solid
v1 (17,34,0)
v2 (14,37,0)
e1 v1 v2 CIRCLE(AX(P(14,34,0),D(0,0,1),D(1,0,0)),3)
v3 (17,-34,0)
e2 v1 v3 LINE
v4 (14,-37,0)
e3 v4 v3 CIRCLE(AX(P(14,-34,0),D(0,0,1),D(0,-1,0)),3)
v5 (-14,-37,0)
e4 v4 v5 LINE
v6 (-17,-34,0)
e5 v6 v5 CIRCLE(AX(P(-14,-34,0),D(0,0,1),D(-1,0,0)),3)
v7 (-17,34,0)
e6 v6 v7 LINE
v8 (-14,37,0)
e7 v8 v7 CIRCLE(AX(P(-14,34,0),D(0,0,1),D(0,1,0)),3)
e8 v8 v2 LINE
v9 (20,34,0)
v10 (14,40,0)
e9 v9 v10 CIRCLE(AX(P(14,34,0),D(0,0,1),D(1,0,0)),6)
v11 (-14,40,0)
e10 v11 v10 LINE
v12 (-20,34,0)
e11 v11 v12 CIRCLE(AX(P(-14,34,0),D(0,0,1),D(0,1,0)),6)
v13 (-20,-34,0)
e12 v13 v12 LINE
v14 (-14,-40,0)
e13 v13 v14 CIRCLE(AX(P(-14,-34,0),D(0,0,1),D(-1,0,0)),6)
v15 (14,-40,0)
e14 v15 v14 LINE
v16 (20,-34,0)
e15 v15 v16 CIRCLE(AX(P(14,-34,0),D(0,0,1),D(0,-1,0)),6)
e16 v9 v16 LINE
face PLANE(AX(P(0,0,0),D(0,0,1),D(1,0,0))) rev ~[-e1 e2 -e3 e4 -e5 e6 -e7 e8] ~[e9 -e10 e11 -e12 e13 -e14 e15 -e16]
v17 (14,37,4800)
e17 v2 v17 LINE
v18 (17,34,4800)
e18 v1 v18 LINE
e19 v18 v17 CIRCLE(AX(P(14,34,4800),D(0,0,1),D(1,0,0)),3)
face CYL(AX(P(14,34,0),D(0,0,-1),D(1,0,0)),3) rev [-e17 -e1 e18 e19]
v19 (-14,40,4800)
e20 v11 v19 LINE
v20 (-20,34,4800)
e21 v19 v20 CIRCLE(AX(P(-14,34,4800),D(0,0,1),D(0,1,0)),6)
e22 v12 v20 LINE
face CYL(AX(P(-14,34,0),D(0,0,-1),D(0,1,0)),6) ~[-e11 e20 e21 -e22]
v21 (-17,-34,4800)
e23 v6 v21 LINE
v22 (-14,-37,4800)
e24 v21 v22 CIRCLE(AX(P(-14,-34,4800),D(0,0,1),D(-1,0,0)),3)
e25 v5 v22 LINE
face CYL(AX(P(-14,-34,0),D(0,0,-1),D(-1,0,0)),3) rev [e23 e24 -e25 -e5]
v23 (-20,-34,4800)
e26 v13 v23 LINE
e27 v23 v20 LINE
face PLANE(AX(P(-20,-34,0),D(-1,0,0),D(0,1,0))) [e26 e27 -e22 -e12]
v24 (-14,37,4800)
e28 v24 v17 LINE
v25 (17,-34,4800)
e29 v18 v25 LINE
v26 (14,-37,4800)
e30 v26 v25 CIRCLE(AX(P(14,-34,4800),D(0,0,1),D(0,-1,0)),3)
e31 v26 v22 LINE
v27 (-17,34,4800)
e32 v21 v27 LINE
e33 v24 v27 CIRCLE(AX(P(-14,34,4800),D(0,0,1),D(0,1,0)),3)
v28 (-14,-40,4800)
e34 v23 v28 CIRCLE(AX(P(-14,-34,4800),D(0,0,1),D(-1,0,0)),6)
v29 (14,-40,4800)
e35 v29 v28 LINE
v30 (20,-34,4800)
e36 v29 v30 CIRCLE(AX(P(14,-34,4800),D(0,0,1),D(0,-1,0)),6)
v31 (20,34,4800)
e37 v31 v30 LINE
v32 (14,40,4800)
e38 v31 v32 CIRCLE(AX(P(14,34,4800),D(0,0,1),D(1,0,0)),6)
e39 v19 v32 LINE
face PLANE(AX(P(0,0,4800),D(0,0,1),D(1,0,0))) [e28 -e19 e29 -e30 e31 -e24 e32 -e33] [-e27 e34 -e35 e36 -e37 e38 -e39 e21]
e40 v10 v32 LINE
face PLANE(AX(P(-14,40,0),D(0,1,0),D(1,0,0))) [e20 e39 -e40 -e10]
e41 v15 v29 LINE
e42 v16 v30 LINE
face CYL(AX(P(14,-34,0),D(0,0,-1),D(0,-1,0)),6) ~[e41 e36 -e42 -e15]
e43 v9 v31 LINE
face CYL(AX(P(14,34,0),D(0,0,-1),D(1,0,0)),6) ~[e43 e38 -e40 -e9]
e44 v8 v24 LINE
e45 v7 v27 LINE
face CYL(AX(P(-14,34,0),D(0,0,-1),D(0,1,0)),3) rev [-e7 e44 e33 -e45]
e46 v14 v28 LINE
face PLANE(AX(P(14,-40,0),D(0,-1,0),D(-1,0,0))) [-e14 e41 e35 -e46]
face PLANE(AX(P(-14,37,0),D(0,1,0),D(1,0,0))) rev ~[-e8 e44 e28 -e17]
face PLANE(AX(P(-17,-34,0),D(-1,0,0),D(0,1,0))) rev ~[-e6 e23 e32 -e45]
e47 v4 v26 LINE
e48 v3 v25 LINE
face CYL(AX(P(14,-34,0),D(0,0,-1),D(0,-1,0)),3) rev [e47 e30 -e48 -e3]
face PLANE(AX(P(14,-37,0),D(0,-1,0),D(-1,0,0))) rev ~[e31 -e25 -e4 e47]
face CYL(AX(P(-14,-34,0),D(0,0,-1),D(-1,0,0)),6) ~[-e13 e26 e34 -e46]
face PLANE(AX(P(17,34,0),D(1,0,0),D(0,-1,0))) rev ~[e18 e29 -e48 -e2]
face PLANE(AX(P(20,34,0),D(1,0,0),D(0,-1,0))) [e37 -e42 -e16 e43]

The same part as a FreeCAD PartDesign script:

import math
import FreeCAD as App
import Part
import Sketcher

doc = App.newDocument("Part")
body = doc.addObject("PartDesign::Body", "Body")

# Sketch on XY plane
sketch1 = doc.addObject("Sketcher::SketchObject", "Sketch")
body.addObject(sketch1)
sketch1.AttachmentSupport = (doc.XY_Plane, [""])
sketch1.MapMode = "FlatFace"
sketch1.addGeometry(Part.LineSegment(App.Vector(-20, 34, 0), App.Vector(-20, -34, 0)), False)
sketch1.addGeometry(Part.ArcOfCircle(Part.Circle(App.Vector(-14, -34, 0), App.Vector(0, 0, 1), 6), math.radians(180), math.radians(270)), False)
sketch1.addGeometry(Part.LineSegment(App.Vector(-14, -40, 0), App.Vector(14, -40, 0)), False)
sketch1.addGeometry(Part.ArcOfCircle(Part.Circle(App.Vector(14, -34, 0), App.Vector(0, 0, 1), 6), math.radians(-90), math.radians(0)), False)
sketch1.addGeometry(Part.LineSegment(App.Vector(20, -34, 0), App.Vector(20, 34, 0)), False)
sketch1.addGeometry(Part.ArcOfCircle(Part.Circle(App.Vector(14, 34, 0), App.Vector(0, 0, 1), 6), math.radians(0), math.radians(90)), False)
sketch1.addGeometry(Part.LineSegment(App.Vector(14, 40, 0), App.Vector(-14, 40, 0)), False)
sketch1.addGeometry(Part.ArcOfCircle(Part.Circle(App.Vector(-14, 34, 0), App.Vector(0, 0, 1), 6), math.radians(90), math.radians(180)), False)
sketch1.addGeometry(Part.ArcOfCircle(Part.Circle(App.Vector(-14, 34, 0), App.Vector(0, 0, 1), 3), math.radians(90), math.radians(180)), False)
sketch1.addGeometry(Part.LineSegment(App.Vector(-14, 37, 0), App.Vector(14, 37, 0)), False)
sketch1.addGeometry(Part.ArcOfCircle(Part.Circle(App.Vector(14, 34, 0), App.Vector(0, 0, 1), 3), math.radians(0), math.radians(90)), False)
sketch1.addGeometry(Part.LineSegment(App.Vector(17, 34, 0), App.Vector(17, -34, 0)), False)
sketch1.addGeometry(Part.ArcOfCircle(Part.Circle(App.Vector(14, -34, 0), App.Vector(0, 0, 1), 3), math.radians(-90), math.radians(0)), False)
sketch1.addGeometry(Part.LineSegment(App.Vector(14, -37, 0), App.Vector(-14, -37, 0)), False)
sketch1.addGeometry(Part.ArcOfCircle(Part.Circle(App.Vector(-14, -34, 0), App.Vector(0, 0, 1), 3), math.radians(180), math.radians(270)), False)
sketch1.addGeometry(Part.LineSegment(App.Vector(-17, -34, 0), App.Vector(-17, 34, 0)), False)
sketch1.addConstraint(Sketcher.Constraint("Tangent", 0, 2, 1, 1))
sketch1.addConstraint(Sketcher.Constraint("Tangent", 1, 2, 2, 1))
sketch1.addConstraint(Sketcher.Constraint("Tangent", 2, 2, 3, 1))
sketch1.addConstraint(Sketcher.Constraint("Tangent", 3, 2, 4, 1))
sketch1.addConstraint(Sketcher.Constraint("Tangent", 4, 2, 5, 1))
sketch1.addConstraint(Sketcher.Constraint("Tangent", 5, 2, 6, 1))
sketch1.addConstraint(Sketcher.Constraint("Tangent", 6, 2, 7, 1))
sketch1.addConstraint(Sketcher.Constraint("Tangent", 7, 2, 0, 1))
sketch1.addConstraint(Sketcher.Constraint("Tangent", 8, 1, 9, 1))
sketch1.addConstraint(Sketcher.Constraint("Tangent", 9, 2, 10, 2))
sketch1.addConstraint(Sketcher.Constraint("Tangent", 10, 1, 11, 1))
sketch1.addConstraint(Sketcher.Constraint("Tangent", 11, 2, 12, 2))
sketch1.addConstraint(Sketcher.Constraint("Tangent", 12, 1, 13, 1))
sketch1.addConstraint(Sketcher.Constraint("Tangent", 13, 2, 14, 2))
sketch1.addConstraint(Sketcher.Constraint("Tangent", 14, 1, 15, 1))
sketch1.addConstraint(Sketcher.Constraint("Tangent", 15, 2, 8, 2))
sketch1.addConstraint(Sketcher.Constraint("Vertical", 0))
sketch1.addConstraint(Sketcher.Constraint("Horizontal", 2))
sketch1.addConstraint(Sketcher.Constraint("Vertical", 4))
sketch1.addConstraint(Sketcher.Constraint("Horizontal", 6))
sketch1.addConstraint(Sketcher.Constraint("Horizontal", 9))
sketch1.addConstraint(Sketcher.Constraint("Vertical", 11))
sketch1.addConstraint(Sketcher.Constraint("Horizontal", 13))
sketch1.addConstraint(Sketcher.Constraint("Vertical", 15))
sketch1.addConstraint(Sketcher.Constraint("Coincident", 8, 3, 7, 3))
sketch1.addConstraint(Sketcher.Constraint("Coincident", 10, 3, 5, 3))
sketch1.addConstraint(Sketcher.Constraint("Coincident", 12, 3, 3, 3))
sketch1.addConstraint(Sketcher.Constraint("Equal", 1, 3))
sketch1.addConstraint(Sketcher.Constraint("Equal", 3, 5))
sketch1.addConstraint(Sketcher.Constraint("Equal", 5, 7))
sketch1.addConstraint(Sketcher.Constraint("Equal", 12, 14))
sketch1.addConstraint(Sketcher.Constraint("Symmetric", 1, 3, 5, 3, -1, 1))
sketch1.addConstraint(Sketcher.Constraint("Radius", 1, 6.0))
sketch1.addConstraint(Sketcher.Constraint("Radius", 8, 3.0))
sketch1.addConstraint(Sketcher.Constraint("DistanceX", 0, 2, -1, 1, 20.0))
sketch1.addConstraint(Sketcher.Constraint("DistanceY", 1, 2, -1, 1, 40.0))
pad1 = doc.addObject("PartDesign::Pad", "Pad")
body.addObject(pad1)
pad1.Profile = sketch1
pad1.Length = 4800

doc.recompute()
